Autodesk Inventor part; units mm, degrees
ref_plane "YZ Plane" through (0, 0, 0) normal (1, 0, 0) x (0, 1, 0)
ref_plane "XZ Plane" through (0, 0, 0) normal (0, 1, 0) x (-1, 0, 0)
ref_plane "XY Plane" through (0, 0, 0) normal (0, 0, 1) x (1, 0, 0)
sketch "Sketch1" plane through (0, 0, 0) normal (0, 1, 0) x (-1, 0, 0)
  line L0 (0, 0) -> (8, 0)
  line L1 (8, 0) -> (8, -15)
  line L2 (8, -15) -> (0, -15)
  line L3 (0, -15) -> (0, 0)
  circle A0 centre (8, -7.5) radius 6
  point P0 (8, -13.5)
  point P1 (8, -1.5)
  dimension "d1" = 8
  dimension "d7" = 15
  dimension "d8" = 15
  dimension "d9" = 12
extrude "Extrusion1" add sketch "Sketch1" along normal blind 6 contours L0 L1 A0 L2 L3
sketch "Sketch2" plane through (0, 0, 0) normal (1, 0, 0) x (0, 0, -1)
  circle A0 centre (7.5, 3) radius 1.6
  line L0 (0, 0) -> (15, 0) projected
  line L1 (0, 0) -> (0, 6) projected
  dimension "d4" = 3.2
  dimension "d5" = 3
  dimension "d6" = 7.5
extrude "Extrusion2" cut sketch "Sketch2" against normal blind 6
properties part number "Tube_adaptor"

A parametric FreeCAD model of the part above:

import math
import FreeCAD as App
import Part
import Sketcher
Q = App.Units.Quantity

doc = App.newDocument("Part")
body = doc.addObject("PartDesign::Body", "Body")

sketch1 = doc.addObject("Sketcher::SketchObject", "Sketch")
body.addObject(sketch1)
sketch1.AttachmentSupport = (doc.XZ_Plane, [""])
sketch1.MapMode = "FlatFace"
sketch1.addGeometry([
    Part.LineSegment(App.Vector(-8, 0, 0), App.Vector(0, 0, 0)),
    Part.LineSegment(App.Vector(0, 0, 0), App.Vector(0, -15, 0)),
    Part.LineSegment(App.Vector(0, -15, 0), App.Vector(-8, -15, 0)),
    Part.LineSegment(App.Vector(-8, -15, 0), App.Vector(-8, -13.5, 0)),
    Part.ArcOfCircle(Part.Circle(App.Vector(-8, -7.5, 0), App.Vector(0, 0, 1), 6), math.radians(-90), math.radians(90)),
    Part.LineSegment(App.Vector(-8, -1.5, 0), App.Vector(-8, 0, 0)),
], False)
sketch1.addConstraint([
    Sketcher.Constraint("Coincident", 0, 2, 1, 1),
    Sketcher.Constraint("Coincident", 1, 2, 2, 1),
    Sketcher.Constraint("Coincident", 2, 2, 3, 1),
    Sketcher.Constraint("Coincident", 3, 2, 4, 1),
    Sketcher.Constraint("Coincident", 4, 2, 5, 1),
    Sketcher.Constraint("Coincident", 5, 2, 0, 1),
    Sketcher.Constraint("Horizontal", 0),
    Sketcher.Constraint("Vertical", 1),
    Sketcher.Constraint("Horizontal", 2),
    Sketcher.Constraint("Vertical", 3),
    Sketcher.Constraint("Vertical", 5),
    Sketcher.Constraint("Coincident", 0, 2, -1, 1),
    Sketcher.Constraint("Vertical", 4, 3, 2, 2),
    Sketcher.Constraint("Vertical", 3, 2, 4, 2),
    Sketcher.Constraint("Equal", 3, 5),
    Sketcher.Constraint("Radius", 4, Q("6 mm")),
    Sketcher.Constraint("DistanceX", 0, 1, 0, 2, Q("8 mm")),
    Sketcher.Constraint("DistanceY", 1, 2, 1, 1, Q("15 mm")),
])
pad1 = doc.addObject("PartDesign::Pad", "Pad")
body.addObject(pad1)
pad1.Profile = sketch1
pad1.Length = 6
pad1.Reversed = True

sketch2 = doc.addObject("Sketcher::SketchObject", "Sketch001")
body.addObject(sketch2)
sketch2.AttachmentSupport = (doc.YZ_Plane, [""])
sketch2.MapMode = "FlatFace"
sketch2.addGeometry(Part.Circle(App.Vector(3, -7.5, 0), App.Vector(0, 0, 1), 1.6), False)
sketch2.addConstraint([
    Sketcher.Constraint("Diameter", 0, Q("3.2 mm")),
    Sketcher.Constraint("DistanceX", -1, 1, 0, 3, Q("3 mm")),
    Sketcher.Constraint("DistanceY", 0, 3, -1, 1, Q("7.5 mm")),
])
pocket1 = doc.addObject("PartDesign::Pocket", "Pocket")
body.addObject(pocket1)
pocket1.Profile = sketch2
pocket1.Length = 6

doc.recompute()
